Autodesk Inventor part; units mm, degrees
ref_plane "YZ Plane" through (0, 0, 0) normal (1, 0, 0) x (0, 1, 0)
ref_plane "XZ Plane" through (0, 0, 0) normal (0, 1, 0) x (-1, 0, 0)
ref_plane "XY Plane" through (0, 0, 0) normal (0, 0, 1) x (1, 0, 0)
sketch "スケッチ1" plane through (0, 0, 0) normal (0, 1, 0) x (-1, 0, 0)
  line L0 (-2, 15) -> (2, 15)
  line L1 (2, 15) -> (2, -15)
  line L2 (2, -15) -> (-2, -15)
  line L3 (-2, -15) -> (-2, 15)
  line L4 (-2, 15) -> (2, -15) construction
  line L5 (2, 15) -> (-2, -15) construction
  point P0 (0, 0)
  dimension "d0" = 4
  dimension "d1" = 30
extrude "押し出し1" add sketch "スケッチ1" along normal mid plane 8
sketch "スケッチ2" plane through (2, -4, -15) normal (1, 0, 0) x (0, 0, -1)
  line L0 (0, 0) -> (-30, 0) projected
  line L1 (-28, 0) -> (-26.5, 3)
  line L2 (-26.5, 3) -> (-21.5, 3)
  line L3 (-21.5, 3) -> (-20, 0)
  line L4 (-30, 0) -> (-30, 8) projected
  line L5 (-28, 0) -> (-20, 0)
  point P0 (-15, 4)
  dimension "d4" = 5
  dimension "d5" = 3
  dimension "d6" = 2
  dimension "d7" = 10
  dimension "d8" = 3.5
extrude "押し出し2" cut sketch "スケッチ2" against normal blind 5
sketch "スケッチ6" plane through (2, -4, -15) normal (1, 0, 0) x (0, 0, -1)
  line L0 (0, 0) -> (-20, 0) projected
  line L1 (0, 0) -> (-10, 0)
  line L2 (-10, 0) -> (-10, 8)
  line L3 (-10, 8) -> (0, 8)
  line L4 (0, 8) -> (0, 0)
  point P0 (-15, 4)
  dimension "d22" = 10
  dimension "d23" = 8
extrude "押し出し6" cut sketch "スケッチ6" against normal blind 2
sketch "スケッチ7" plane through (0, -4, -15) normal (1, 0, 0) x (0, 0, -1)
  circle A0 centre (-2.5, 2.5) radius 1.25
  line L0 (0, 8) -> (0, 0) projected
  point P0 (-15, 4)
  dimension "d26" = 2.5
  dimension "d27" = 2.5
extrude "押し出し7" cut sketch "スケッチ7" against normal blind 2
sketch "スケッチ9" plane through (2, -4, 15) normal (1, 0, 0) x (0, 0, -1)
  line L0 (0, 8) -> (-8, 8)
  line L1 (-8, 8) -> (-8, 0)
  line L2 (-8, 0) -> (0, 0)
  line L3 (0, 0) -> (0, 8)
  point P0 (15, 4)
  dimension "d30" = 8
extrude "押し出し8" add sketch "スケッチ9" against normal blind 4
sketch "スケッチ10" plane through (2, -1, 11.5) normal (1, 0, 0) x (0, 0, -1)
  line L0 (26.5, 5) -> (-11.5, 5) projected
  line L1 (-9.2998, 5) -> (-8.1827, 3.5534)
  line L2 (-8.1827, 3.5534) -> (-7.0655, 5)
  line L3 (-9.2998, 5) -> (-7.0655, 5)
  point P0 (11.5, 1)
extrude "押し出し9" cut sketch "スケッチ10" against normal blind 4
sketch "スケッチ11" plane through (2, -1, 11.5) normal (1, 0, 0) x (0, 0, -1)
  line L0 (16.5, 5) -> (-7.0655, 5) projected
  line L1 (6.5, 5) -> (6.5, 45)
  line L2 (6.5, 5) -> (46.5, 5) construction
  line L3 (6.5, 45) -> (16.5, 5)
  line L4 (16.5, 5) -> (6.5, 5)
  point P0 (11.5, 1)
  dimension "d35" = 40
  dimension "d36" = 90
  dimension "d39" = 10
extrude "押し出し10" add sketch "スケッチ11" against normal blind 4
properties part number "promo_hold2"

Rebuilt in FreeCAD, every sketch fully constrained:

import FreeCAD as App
import Part
import Sketcher

V = App.Vector
Q = App.Units.Quantity


def add_polygon(sketch, points):
    """Adds a closed chain of lines whose ends are joined by coincident constraints."""
    first, n = sketch.GeometryCount, len(points)
    for a, b in zip(points, points[1:] + points[:1]):
        sketch.addGeometry(Part.LineSegment(App.Vector(*a, 0), App.Vector(*b, 0)), False)
    for i in range(n):
        sketch.addConstraint(Sketcher.Constraint("Coincident", first + i, 2, first + (i + 1) % n, 1))

doc = App.newDocument("Part")
body = doc.addObject("PartDesign::Body", "Body")

# Sketch on XZ plane
sketch1 = body.newObject("Sketcher::SketchObject", "Sketch")
sketch1.AttachmentSupport = (doc.getObject("XZ_Plane"), [""])
sketch1.MapMode = "FlatFace"
add_polygon(sketch1, [(-2, 15), (2, 15), (2, -15), (-2, -15)])  # lines 0-3
sketch1.addConstraint([
    Sketcher.Constraint("Horizontal", 0),
    Sketcher.Constraint("Vertical", 1),
    Sketcher.Constraint("Horizontal", 2),
    Sketcher.Constraint("Vertical", 3),
    Sketcher.Constraint("Symmetric", 0, 2, 2, 2, -1, 1),
    Sketcher.Constraint("DistanceX", 0, 1, 0, 2, Q("4 mm")),
    Sketcher.Constraint("DistanceY", 1, 2, 1, 1, Q("30 mm")),
])
pad1 = body.newObject("PartDesign::Pad", "Pad")
pad1.Profile = sketch1
pad1.Length = 8
pad1.Midplane = True

# Sketch on YZ plane
sketch2 = body.newObject("Sketcher::SketchObject", "Sketch001")
sketch2.AttachmentSupport = (doc.getObject("YZ_Plane"), [""])
sketch2.MapMode = "FlatFace"
sketch2.AttachmentOffset = App.Placement(V(0, 0, 2), App.Rotation())
add_polygon(sketch2, [(-4, 13), (-4, 5), (-1, 6.5), (-1, 11.5)])  # lines 0-3
sketch2.addConstraint([
    Sketcher.Constraint("Vertical", 0),
    Sketcher.Constraint("Vertical", 2),
    Sketcher.Constraint("Equal", 1, 3),
    Sketcher.Constraint("DistanceY", 2, 1, 2, 2, Q("5 mm")),
    Sketcher.Constraint("DistanceY", -1, 1, 0, 2, Q("5 mm")),
    Sketcher.Constraint("DistanceX", 0, 2, 1, 2, Q("3 mm")),
    Sketcher.Constraint("DistanceY", 0, 2, 0, 1, Q("8 mm")),
    Sketcher.Constraint("DistanceX", 0, 2, -1, 1, Q("4 mm")),
])
pocket1 = body.newObject("PartDesign::Pocket", "Pocket")
pocket1.Profile = sketch2
pocket1.Length = 5

# Sketch on YZ plane
sketch3 = body.newObject("Sketcher::SketchObject", "Sketch002")
sketch3.AttachmentSupport = (doc.getObject("YZ_Plane"), [""])
sketch3.MapMode = "FlatFace"
sketch3.AttachmentOffset = App.Placement(V(0, 0, 2), App.Rotation())
add_polygon(sketch3, [(-4, -5), (-4, -15), (4, -15), (4, -5)])  # lines 0-3
sketch3.addConstraint([
    Sketcher.Constraint("Vertical", 0),
    Sketcher.Constraint("Horizontal", 1),
    Sketcher.Constraint("Vertical", 2),
    Sketcher.Constraint("Horizontal", 3),
    Sketcher.Constraint("DistanceX", 1, 1, 1, 2, Q("8 mm")),
    Sketcher.Constraint("DistanceY", 0, 2, 0, 1, Q("10 mm")),
    Sketcher.Constraint("DistanceX", 0, 2, -1, 1, Q("4 mm")),
    Sketcher.Constraint("DistanceY", 0, 2, -1, 1, Q("15 mm")),
])
pocket2 = body.newObject("PartDesign::Pocket", "Pocket001")
pocket2.Profile = sketch3
pocket2.Length = 2

# Sketch on YZ plane
sketch4 = body.newObject("Sketcher::SketchObject", "Sketch003")
sketch4.AttachmentSupport = (doc.getObject("YZ_Plane"), [""])
sketch4.MapMode = "FlatFace"
sketch4.addGeometry(Part.Circle(V(-1.5, -12.5, 0), V(0, 0, 1), 1.2), False)
sketch4.addConstraint([
    Sketcher.Constraint("Diameter", 0, Q("2.5 mm")),
    Sketcher.Constraint("DistanceX", 0, 3, -1, 1, Q("1.5 mm")),
    Sketcher.Constraint("DistanceY", 0, 3, -1, 1, Q("12.5 mm")),
])
pocket3 = body.newObject("PartDesign::Pocket", "Pocket002")
pocket3.Profile = sketch4
pocket3.Length = 2

# Sketch on YZ plane
sketch5 = body.newObject("Sketcher::SketchObject", "Sketch004")
sketch5.AttachmentSupport = (doc.getObject("YZ_Plane"), [""])
sketch5.MapMode = "FlatFace"
sketch5.AttachmentOffset = App.Placement(V(0, 0, 2), App.Rotation())
add_polygon(sketch5, [(-4, 15), (4, 15), (4, 23), (-4, 23)])  # lines 0-3
sketch5.addConstraint([
    Sketcher.Constraint("Horizontal", 0),
    Sketcher.Constraint("Vertical", 1),
    Sketcher.Constraint("Horizontal", 2),
    Sketcher.Constraint("Vertical", 3),
    Sketcher.Constraint("Equal", 2, 1),
    Sketcher.Constraint("DistanceX", 0, 1, 0, 2, Q("8 mm")),
    Sketcher.Constraint("DistanceX", -1, 1, 0, 2, Q("4 mm")),
    Sketcher.Constraint("DistanceY", -1, 1, 0, 2, Q("15 mm")),
])
pad2 = body.newObject("PartDesign::Pad", "Pad001")
pad2.Profile = sketch5
pad2.Length = 4
pad2.Reversed = True

# Sketch on YZ plane
sketch6 = body.newObject("Sketcher::SketchObject", "Sketch005")
sketch6.AttachmentSupport = (doc.getObject("YZ_Plane"), [""])
sketch6.MapMode = "FlatFace"
sketch6.AttachmentOffset = App.Placement(V(0, 0, 2), App.Rotation())
add_polygon(sketch6, [(2.6, 19.7), (4, 18.6), (4, 20.8)])  # lines 0-2
sketch6.addConstraint([
    Sketcher.Constraint("Vertical", 1),
    Sketcher.Constraint("Equal", 0, 2),
    Sketcher.Constraint("DistanceX", -1, 1, 0, 2, Q("4 mm")),
    Sketcher.Constraint("DistanceY", 1, 1, 1, 2, Q("2.2343 mm")),
    Sketcher.Constraint("Distance", 0, Q("1.8278 mm")),
    Sketcher.Constraint("DistanceY", -1, 1, 0, 2, Q("18.5655 mm")),
])
pocket4 = body.newObject("PartDesign::Pocket", "Pocket003")
pocket4.Profile = sketch6
pocket4.Length = 4

# Sketch on YZ plane
sketch7 = body.newObject("Sketcher::SketchObject", "Sketch006")
sketch7.AttachmentSupport = (doc.getObject("YZ_Plane"), [""])
sketch7.MapMode = "FlatFace"
sketch7.AttachmentOffset = App.Placement(V(0, 0, 2), App.Rotation())
add_polygon(sketch7, [(4, 5), (4, -5), (44, 5)])  # lines 0-2
sketch7.addConstraint([
    Sketcher.Constraint("Vertical", 0),
    Sketcher.Constraint("Horizontal", 2),
    Sketcher.Constraint("DistanceX", 2, 2, 2, 1, Q("40 mm")),
    Sketcher.Constraint("DistanceY", 0, 2, 0, 1, Q("10 mm")),
    Sketcher.Constraint("DistanceX", -1, 1, 0, 2, Q("4 mm")),
    Sketcher.Constraint("DistanceY", 0, 2, -1, 1, Q("5 mm")),
])
pad3 = body.newObject("PartDesign::Pad", "Pad002")
pad3.Profile = sketch7
pad3.Length = 4
pad3.Reversed = True

doc.recompute()
